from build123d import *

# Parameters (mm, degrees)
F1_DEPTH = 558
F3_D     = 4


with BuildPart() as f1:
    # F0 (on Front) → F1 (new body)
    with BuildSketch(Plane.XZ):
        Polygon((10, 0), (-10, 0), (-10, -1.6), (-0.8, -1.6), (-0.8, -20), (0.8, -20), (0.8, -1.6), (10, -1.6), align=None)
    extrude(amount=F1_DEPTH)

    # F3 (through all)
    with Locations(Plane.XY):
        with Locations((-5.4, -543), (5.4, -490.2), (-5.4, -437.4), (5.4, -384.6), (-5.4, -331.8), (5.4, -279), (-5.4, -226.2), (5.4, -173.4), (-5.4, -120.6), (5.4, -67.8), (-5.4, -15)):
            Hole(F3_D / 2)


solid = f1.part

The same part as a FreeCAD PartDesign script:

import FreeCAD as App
import Part
import Sketcher
from FreeCAD import Vector
Q = App.Units.Quantity

doc = App.newDocument("Part")
body = doc.addObject("PartDesign::Body", "Body")

sketch1 = body.newObject("Sketcher::SketchObject", "Sketch")
sketch1.AttachmentSupport = (doc.getObject("XZ_Plane"), [""])
sketch1.MapMode = "FlatFace"
sketch1.addGeometry(Part.LineSegment(Vector(10, 0, 0), Vector(-10, 0, 0)), False)
sketch1.addGeometry(Part.LineSegment(Vector(-10, 0, 0), Vector(-10, -1.6, 0)), False)
sketch1.addGeometry(Part.LineSegment(Vector(-10, -1.6, 0), Vector(-0.8, -1.6, 0)), False)
sketch1.addGeometry(Part.LineSegment(Vector(-0.8, -1.6, 0), Vector(-0.8, -20, 0)), False)
sketch1.addGeometry(Part.LineSegment(Vector(-0.8, -20, 0), Vector(0.8, -20, 0)), False)
sketch1.addGeometry(Part.LineSegment(Vector(0.8, -20, 0), Vector(0.8, -1.6, 0)), False)
sketch1.addGeometry(Part.LineSegment(Vector(0.8, -1.6, 0), Vector(10, -1.6, 0)), False)
sketch1.addGeometry(Part.LineSegment(Vector(10, -1.6, 0), Vector(10, 0, 0)), False)
sketch1.addConstraint(Sketcher.Constraint("Coincident", 0, 2, 1, 1))
sketch1.addConstraint(Sketcher.Constraint("Coincident", 1, 2, 2, 1))
sketch1.addConstraint(Sketcher.Constraint("Coincident", 2, 2, 3, 1))
sketch1.addConstraint(Sketcher.Constraint("Coincident", 3, 2, 4, 1))
sketch1.addConstraint(Sketcher.Constraint("Coincident", 4, 2, 5, 1))
sketch1.addConstraint(Sketcher.Constraint("Coincident", 5, 2, 6, 1))
sketch1.addConstraint(Sketcher.Constraint("Coincident", 6, 2, 7, 1))
sketch1.addConstraint(Sketcher.Constraint("Coincident", 7, 2, 0, 1))
sketch1.addConstraint(Sketcher.Constraint("Horizontal", 0))
sketch1.addConstraint(Sketcher.Constraint("Vertical", 1))
sketch1.addConstraint(Sketcher.Constraint("Horizontal", 2))
sketch1.addConstraint(Sketcher.Constraint("Vertical", 3))
sketch1.addConstraint(Sketcher.Constraint("Horizontal", 4))
sketch1.addConstraint(Sketcher.Constraint("Vertical", 5))
sketch1.addConstraint(Sketcher.Constraint("Horizontal", 6))
sketch1.addConstraint(Sketcher.Constraint("Vertical", 7))
sketch1.addConstraint(Sketcher.Constraint("Symmetric", 0, 2, 7, 2, -1, 1))
sketch1.addConstraint(Sketcher.Constraint("Symmetric", 2, 2, 5, 2, -2))
sketch1.addConstraint(Sketcher.Constraint("Equal", 4, 1))
sketch1.addConstraint(Sketcher.Constraint("DistanceX", 0, 2, 0, 1, Q("20 mm")))
sketch1.addConstraint(Sketcher.Constraint("DistanceX", 2, 1, 2, 2, Q("9.2 mm")))
sketch1.addConstraint(Sketcher.Constraint("DistanceY", 3, 2, 3, 1, Q("18.4 mm")))
pad1 = body.newObject("PartDesign::Pad", "Pad")
pad1.Profile = sketch1
pad1.Length = 558

sketch2 = body.newObject("Sketcher::SketchObject", "Sketch001")
sketch2.AttachmentSupport = (doc.getObject("XY_Plane"), [""])
sketch2.MapMode = "FlatFace"
sketch2.addGeometry(Part.Circle(Vector(-5.4, -543, 0), Vector(0, 0, 1), 2), False)
sketch2.addGeometry(Part.Circle(Vector(5.4, -490.2, 0), Vector(0, 0, 1), 2), False)
sketch2.addGeometry(Part.Circle(Vector(-5.4, -437.4, 0), Vector(0, 0, 1), 2), False)
sketch2.addGeometry(Part.Circle(Vector(5.4, -384.6, 0), Vector(0, 0, 1), 2), False)
sketch2.addGeometry(Part.Circle(Vector(-5.4, -331.8, 0), Vector(0, 0, 1), 2), False)
sketch2.addGeometry(Part.Circle(Vector(5.4, -279, 0), Vector(0, 0, 1), 2), False)
sketch2.addGeometry(Part.Circle(Vector(-5.4, -226.2, 0), Vector(0, 0, 1), 2), False)
sketch2.addGeometry(Part.Circle(Vector(5.4, -173.4, 0), Vector(0, 0, 1), 2), False)
sketch2.addGeometry(Part.Circle(Vector(-5.4, -120.6, 0), Vector(0, 0, 1), 2), False)
sketch2.addGeometry(Part.Circle(Vector(5.4, -67.8, 0), Vector(0, 0, 1), 2), False)
sketch2.addGeometry(Part.Circle(Vector(-5.4, -15, 0), Vector(0, 0, 1), 2), False)
sketch2.addConstraint(Sketcher.Constraint("Equal", 0, 1))
sketch2.addConstraint(Sketcher.Constraint("Equal", 1, 2))
sketch2.addConstraint(Sketcher.Constraint("Equal", 2, 3))
sketch2.addConstraint(Sketcher.Constraint("Equal", 3, 4))
sketch2.addConstraint(Sketcher.Constraint("Equal", 4, 5))
sketch2.addConstraint(Sketcher.Constraint("Equal", 5, 6))
sketch2.addConstraint(Sketcher.Constraint("Equal", 6, 7))
sketch2.addConstraint(Sketcher.Constraint("Equal", 7, 8))
sketch2.addConstraint(Sketcher.Constraint("Equal", 8, 9))
sketch2.addConstraint(Sketcher.Constraint("Equal", 9, 10))
sketch2.addConstraint(Sketcher.Constraint("Vertical", 0, 3, 2, 3))
sketch2.addConstraint(Sketcher.Constraint("Vertical", 1, 3, 3, 3))
sketch2.addConstraint(Sketcher.Constraint("Vertical", 2, 3, 4, 3))
sketch2.addConstraint(Sketcher.Constraint("Vertical", 3, 3, 5, 3))
sketch2.addConstraint(Sketcher.Constraint("Vertical", 4, 3, 6, 3))
sketch2.addConstraint(Sketcher.Constraint("Vertical", 5, 3, 7, 3))
sketch2.addConstraint(Sketcher.Constraint("Vertical", 6, 3, 8, 3))
sketch2.addConstraint(Sketcher.Constraint("Vertical", 7, 3, 9, 3))
sketch2.addConstraint(Sketcher.Constraint("Vertical", 8, 3, 10, 3))
sketch2.addConstraint(Sketcher.Constraint("Diameter", 0, Q("4 mm")))
sketch2.addConstraint(Sketcher.Constraint("DistanceY", 0, 3, -1, 1, Q("543 mm")))
sketch2.addConstraint(Sketcher.Constraint("DistanceY", 5, 3, -1, 1, Q("279 mm")))
sketch2.addConstraint(Sketcher.Constraint("DistanceY", 10, 3, -1, 1, Q("15 mm")))
sketch2.addConstraint(Sketcher.Constraint("DistanceY", 1, 3, 6, 3, Q("264 mm")))
sketch2.addConstraint(Sketcher.Constraint("DistanceY", 2, 3, 7, 3, Q("264 mm")))
sketch2.addConstraint(Sketcher.Constraint("DistanceY", 3, 3, 8, 3, Q("264 mm")))
sketch2.addConstraint(Sketcher.Constraint("DistanceY", 4, 3, 9, 3, Q("264 mm")))
sketch2.addConstraint(Sketcher.Constraint("DistanceX", 0, 3, -1, 1, Q("5.4 mm")))
sketch2.addConstraint(Sketcher.Constraint("DistanceX", -1, 1, 1, 3, Q("5.4 mm")))
sketch2.addConstraint(Sketcher.Constraint("DistanceY", 1, 3, -1, 1, Q("490.2 mm")))
sketch2.addConstraint(Sketcher.Constraint("DistanceY", 2, 3, -1, 1, Q("437.4 mm")))
sketch2.addConstraint(Sketcher.Constraint("DistanceY", 3, 3, -1, 1, Q("384.6 mm")))
sketch2.addConstraint(Sketcher.Constraint("DistanceY", 4, 3, -1, 1, Q("331.8 mm")))
doc.recompute()
hole = body.newObject("PartDesign::Hole", "Hole")
hole.Profile = sketch2
hole.ThreadType = "None"
hole.Diameter = 4
hole.DepthType = "ThroughAll"

doc.recompute()
